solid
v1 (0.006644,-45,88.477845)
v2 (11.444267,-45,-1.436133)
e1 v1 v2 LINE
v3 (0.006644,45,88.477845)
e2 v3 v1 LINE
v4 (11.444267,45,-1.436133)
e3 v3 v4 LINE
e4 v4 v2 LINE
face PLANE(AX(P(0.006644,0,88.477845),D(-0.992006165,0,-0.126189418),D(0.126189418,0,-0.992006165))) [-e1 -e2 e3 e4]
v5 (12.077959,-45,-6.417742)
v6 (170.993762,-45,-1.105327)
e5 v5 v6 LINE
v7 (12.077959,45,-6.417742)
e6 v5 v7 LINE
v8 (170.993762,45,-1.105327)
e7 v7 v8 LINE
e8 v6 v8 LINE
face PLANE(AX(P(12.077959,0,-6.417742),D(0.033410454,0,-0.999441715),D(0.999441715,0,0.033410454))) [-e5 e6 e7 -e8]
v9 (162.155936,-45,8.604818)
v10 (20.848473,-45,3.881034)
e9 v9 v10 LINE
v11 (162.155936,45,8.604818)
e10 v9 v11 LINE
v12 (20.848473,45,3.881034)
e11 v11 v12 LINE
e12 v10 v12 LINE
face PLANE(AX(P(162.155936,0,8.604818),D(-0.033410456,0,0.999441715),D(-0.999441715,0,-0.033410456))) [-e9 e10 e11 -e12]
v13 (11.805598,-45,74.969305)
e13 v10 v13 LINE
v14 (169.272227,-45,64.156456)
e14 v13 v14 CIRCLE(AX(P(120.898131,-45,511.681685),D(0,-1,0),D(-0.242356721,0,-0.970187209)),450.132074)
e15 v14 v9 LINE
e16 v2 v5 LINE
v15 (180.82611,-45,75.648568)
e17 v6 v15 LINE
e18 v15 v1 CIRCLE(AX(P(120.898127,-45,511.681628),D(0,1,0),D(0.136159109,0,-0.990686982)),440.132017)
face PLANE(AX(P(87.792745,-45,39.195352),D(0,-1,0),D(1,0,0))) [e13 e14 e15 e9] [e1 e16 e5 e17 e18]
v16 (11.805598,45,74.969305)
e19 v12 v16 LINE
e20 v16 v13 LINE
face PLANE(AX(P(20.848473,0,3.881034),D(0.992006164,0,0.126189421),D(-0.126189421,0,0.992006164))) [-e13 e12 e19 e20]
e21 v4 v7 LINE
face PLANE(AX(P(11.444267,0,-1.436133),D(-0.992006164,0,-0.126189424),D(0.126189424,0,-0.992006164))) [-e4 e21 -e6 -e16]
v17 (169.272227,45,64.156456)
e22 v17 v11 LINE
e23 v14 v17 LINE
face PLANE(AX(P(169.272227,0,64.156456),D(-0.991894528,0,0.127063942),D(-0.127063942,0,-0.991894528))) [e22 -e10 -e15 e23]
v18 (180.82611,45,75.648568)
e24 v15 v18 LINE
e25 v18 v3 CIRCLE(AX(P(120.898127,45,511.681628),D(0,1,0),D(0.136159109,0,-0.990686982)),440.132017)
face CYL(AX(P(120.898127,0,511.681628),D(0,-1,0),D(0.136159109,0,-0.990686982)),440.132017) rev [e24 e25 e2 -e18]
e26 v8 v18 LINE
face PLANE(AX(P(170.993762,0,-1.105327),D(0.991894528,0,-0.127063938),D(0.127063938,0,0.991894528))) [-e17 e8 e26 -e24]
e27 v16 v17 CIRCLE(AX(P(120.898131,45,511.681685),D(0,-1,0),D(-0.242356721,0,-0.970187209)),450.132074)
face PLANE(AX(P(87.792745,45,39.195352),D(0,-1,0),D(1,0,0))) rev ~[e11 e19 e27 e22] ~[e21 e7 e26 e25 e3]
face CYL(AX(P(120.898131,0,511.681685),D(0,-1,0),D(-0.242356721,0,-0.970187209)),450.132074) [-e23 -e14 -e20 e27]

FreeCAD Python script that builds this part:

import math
import FreeCAD as App
import Part
import Sketcher

V = App.Vector
Q = App.Units.Quantity

doc = App.newDocument("Part")
body = doc.addObject("PartDesign::Body", "Body")

# Sketch on XZ plane
sketch1 = body.newObject("Sketcher::SketchObject", "Sketch")
sketch1.AttachmentSupport = (doc.getObject("XZ_Plane"), [""])
sketch1.MapMode = "FlatFace"
sketch1.addGeometry([
    Part.ArcOfCircle(Part.Circle(V(120.898127, 511.681628, 0), V(0, 0, 1), 440.132017), math.radians(-105.942406), math.radians(-82.174349)),  # 0
    Part.LineSegment(V(0.006644, 88.477845, 0), V(11.444267, -1.436133, 0)),  # 1
    Part.LineSegment(V(11.444267, -1.436133, 0), V(12.077959, -6.417742, 0)),  # 2
    Part.LineSegment(V(12.077959, -6.417742, 0), V(170.993762, -1.105327, 0)),  # 3
    Part.LineSegment(V(170.993762, -1.105327, 0), V(180.82611, 75.648568, 0)),  # 4
    Part.LineSegment(V(20.848473, 3.881034, 0), V(11.805598, 74.969305, 0)),  # 5
    Part.ArcOfCircle(Part.Circle(V(120.898131, 511.681685, 0), V(0, 0, 1), 450.132074), math.radians(-104.025678), math.radians(-83.830712)),  # 6
    Part.LineSegment(V(169.272227, 64.156456, 0), V(162.155936, 8.604818, 0)),  # 7
    Part.LineSegment(V(162.155936, 8.604818, 0), V(20.848473, 3.881034, 0)),  # 8
], False)
sketch1.addConstraint([
    Sketcher.Constraint("Coincident", 0, 1, 1, 1),
    Sketcher.Constraint("Coincident", 1, 2, 2, 1),
    Sketcher.Constraint("Coincident", 2, 2, 3, 1),
    Sketcher.Constraint("Coincident", 3, 2, 4, 1),
    Sketcher.Constraint("Coincident", 4, 2, 0, 2),
    Sketcher.Constraint("Coincident", 5, 2, 6, 1),
    Sketcher.Constraint("Coincident", 6, 2, 7, 1),
    Sketcher.Constraint("Coincident", 7, 2, 8, 1),
    Sketcher.Constraint("Coincident", 8, 2, 5, 1),
    Sketcher.Constraint("Radius", 0, Q("440.132017 mm")),
    Sketcher.Constraint("Radius", 6, Q("450.132074 mm")),
    Sketcher.Constraint("DistanceY", 1, 2, 4, 2, Q("77.084701 mm")),
    Sketcher.Constraint("Distance", 5, Q("71.661118 mm")),
    Sketcher.Constraint("Distance", 7, Q("56.00559 mm")),
    Sketcher.Constraint("DistanceX", -1, 1, 6, 3, Q("120.898131 mm")),
    Sketcher.Constraint("DistanceX", -1, 1, 2, 2, Q("12.077959 mm")),
    Sketcher.Constraint("DistanceY", 2, 2, -1, 1, Q("6.417742 mm")),
    Sketcher.Constraint("DistanceX", -1, 1, 3, 2, Q("170.993762 mm")),
    Sketcher.Constraint("DistanceX", -1, 1, 4, 2, Q("180.82611 mm")),
    Sketcher.Constraint("DistanceY", 0, 1, 6, 3, Q("423.20384 mm")),
    Sketcher.Constraint("DistanceX", 1, 2, 0, 3, Q("109.45386 mm")),
    Sketcher.Constraint("DistanceY", 1, 2, 0, 3, Q("513.117761 mm")),
    Sketcher.Constraint("DistanceY", 2, 2, 1, 2, Q("4.981609 mm")),
    Sketcher.Constraint("DistanceY", 3, 2, 0, 1, Q("89.583172 mm")),
    Sketcher.Constraint("DistanceX", 1, 2, 5, 2, Q("0.361331 mm")),
    Sketcher.Constraint("DistanceY", 1, 2, 5, 2, Q("76.405438 mm")),
    Sketcher.Constraint("DistanceY", 6, 2, 4, 2, Q("11.492112 mm")),
    Sketcher.Constraint("DistanceY", 7, 2, 4, 2, Q("67.04375 mm")),
    Sketcher.Constraint("DistanceY", 8, 2, 5, 2, Q("71.088271 mm")),
])
pad1 = body.newObject("PartDesign::Pad", "Pad")
pad1.Profile = sketch1
pad1.Length = 90
pad1.Midplane = True

doc.recompute()
